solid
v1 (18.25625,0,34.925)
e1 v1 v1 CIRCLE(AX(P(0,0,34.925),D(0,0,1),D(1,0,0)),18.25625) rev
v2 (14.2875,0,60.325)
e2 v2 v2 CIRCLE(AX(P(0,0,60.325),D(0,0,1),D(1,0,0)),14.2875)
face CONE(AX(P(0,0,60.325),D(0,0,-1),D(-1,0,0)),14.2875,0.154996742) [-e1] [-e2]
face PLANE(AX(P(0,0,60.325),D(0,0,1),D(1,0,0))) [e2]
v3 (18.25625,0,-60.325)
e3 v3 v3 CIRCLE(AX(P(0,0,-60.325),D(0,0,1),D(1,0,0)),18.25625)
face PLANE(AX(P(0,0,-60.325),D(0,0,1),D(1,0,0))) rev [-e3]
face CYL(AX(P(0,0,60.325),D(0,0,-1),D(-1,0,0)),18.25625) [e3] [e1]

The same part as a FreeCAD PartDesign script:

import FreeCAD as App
import Part
import Sketcher

V = App.Vector
Q = App.Units.Quantity


def edges_at(feature, points):
    """Names of the edges that pass closest to the given points."""
    edges = feature.Shape.Edges
    near = lambda p: min(range(len(edges)), key=lambda i: edges[i].distToShape(Part.Vertex(*p))[0])
    return sorted({f"Edge{near(p) + 1}" for p in points})

doc = App.newDocument("Part")
params = doc.addObject("Spreadsheet::Sheet", "Params")
for row, (alias, value) in enumerate([
    ("sketch1_diameter", "1.4375 in"),
    ("pad1_length", "4.75 in"),
    ("chamfer_size", "1 in"),
    ("chamfer_size2", "0.15625 in"),
], start=1):
    params.set(f"A{row}", alias)
    params.set(f"B{row}", "=" + value)
    params.setAlias(f"B{row}", alias)

body = doc.addObject("PartDesign::Body", "Body")

sketch1 = body.newObject("Sketcher::SketchObject", "Sketch")
sketch1.AttachmentSupport = (doc.getObject("XY_Plane"), [""])
sketch1.MapMode = "FlatFace"
sketch1.addGeometry(Part.Circle(V(0, 0, 0), V(0, 0, 1), 18), False)
sketch1.addConstraint(Sketcher.Constraint("Coincident", 0, 3, -1, 1))
sketch1.addConstraint(Sketcher.Constraint("Diameter", 0, Q("1.4375 in")))
sketch1.setExpression("Constraints[1]", "Params.sketch1_diameter")
pad1 = body.newObject("PartDesign::Pad", "Pad")
pad1.Profile = sketch1
pad1.setExpression("Length", "Params.pad1_length")
pad1.Midplane = True
doc.recompute()

chamfer = body.newObject("PartDesign::Chamfer", "Chamfer")
chamfer.Base = (pad1, edges_at(pad1, [(-18.256, 0, 60.325)]))
chamfer.ChamferType = "Two distances"
chamfer.setExpression("Size", "Params.chamfer_size")
chamfer.setExpression("Size2", "Params.chamfer_size2")

doc.recompute()
